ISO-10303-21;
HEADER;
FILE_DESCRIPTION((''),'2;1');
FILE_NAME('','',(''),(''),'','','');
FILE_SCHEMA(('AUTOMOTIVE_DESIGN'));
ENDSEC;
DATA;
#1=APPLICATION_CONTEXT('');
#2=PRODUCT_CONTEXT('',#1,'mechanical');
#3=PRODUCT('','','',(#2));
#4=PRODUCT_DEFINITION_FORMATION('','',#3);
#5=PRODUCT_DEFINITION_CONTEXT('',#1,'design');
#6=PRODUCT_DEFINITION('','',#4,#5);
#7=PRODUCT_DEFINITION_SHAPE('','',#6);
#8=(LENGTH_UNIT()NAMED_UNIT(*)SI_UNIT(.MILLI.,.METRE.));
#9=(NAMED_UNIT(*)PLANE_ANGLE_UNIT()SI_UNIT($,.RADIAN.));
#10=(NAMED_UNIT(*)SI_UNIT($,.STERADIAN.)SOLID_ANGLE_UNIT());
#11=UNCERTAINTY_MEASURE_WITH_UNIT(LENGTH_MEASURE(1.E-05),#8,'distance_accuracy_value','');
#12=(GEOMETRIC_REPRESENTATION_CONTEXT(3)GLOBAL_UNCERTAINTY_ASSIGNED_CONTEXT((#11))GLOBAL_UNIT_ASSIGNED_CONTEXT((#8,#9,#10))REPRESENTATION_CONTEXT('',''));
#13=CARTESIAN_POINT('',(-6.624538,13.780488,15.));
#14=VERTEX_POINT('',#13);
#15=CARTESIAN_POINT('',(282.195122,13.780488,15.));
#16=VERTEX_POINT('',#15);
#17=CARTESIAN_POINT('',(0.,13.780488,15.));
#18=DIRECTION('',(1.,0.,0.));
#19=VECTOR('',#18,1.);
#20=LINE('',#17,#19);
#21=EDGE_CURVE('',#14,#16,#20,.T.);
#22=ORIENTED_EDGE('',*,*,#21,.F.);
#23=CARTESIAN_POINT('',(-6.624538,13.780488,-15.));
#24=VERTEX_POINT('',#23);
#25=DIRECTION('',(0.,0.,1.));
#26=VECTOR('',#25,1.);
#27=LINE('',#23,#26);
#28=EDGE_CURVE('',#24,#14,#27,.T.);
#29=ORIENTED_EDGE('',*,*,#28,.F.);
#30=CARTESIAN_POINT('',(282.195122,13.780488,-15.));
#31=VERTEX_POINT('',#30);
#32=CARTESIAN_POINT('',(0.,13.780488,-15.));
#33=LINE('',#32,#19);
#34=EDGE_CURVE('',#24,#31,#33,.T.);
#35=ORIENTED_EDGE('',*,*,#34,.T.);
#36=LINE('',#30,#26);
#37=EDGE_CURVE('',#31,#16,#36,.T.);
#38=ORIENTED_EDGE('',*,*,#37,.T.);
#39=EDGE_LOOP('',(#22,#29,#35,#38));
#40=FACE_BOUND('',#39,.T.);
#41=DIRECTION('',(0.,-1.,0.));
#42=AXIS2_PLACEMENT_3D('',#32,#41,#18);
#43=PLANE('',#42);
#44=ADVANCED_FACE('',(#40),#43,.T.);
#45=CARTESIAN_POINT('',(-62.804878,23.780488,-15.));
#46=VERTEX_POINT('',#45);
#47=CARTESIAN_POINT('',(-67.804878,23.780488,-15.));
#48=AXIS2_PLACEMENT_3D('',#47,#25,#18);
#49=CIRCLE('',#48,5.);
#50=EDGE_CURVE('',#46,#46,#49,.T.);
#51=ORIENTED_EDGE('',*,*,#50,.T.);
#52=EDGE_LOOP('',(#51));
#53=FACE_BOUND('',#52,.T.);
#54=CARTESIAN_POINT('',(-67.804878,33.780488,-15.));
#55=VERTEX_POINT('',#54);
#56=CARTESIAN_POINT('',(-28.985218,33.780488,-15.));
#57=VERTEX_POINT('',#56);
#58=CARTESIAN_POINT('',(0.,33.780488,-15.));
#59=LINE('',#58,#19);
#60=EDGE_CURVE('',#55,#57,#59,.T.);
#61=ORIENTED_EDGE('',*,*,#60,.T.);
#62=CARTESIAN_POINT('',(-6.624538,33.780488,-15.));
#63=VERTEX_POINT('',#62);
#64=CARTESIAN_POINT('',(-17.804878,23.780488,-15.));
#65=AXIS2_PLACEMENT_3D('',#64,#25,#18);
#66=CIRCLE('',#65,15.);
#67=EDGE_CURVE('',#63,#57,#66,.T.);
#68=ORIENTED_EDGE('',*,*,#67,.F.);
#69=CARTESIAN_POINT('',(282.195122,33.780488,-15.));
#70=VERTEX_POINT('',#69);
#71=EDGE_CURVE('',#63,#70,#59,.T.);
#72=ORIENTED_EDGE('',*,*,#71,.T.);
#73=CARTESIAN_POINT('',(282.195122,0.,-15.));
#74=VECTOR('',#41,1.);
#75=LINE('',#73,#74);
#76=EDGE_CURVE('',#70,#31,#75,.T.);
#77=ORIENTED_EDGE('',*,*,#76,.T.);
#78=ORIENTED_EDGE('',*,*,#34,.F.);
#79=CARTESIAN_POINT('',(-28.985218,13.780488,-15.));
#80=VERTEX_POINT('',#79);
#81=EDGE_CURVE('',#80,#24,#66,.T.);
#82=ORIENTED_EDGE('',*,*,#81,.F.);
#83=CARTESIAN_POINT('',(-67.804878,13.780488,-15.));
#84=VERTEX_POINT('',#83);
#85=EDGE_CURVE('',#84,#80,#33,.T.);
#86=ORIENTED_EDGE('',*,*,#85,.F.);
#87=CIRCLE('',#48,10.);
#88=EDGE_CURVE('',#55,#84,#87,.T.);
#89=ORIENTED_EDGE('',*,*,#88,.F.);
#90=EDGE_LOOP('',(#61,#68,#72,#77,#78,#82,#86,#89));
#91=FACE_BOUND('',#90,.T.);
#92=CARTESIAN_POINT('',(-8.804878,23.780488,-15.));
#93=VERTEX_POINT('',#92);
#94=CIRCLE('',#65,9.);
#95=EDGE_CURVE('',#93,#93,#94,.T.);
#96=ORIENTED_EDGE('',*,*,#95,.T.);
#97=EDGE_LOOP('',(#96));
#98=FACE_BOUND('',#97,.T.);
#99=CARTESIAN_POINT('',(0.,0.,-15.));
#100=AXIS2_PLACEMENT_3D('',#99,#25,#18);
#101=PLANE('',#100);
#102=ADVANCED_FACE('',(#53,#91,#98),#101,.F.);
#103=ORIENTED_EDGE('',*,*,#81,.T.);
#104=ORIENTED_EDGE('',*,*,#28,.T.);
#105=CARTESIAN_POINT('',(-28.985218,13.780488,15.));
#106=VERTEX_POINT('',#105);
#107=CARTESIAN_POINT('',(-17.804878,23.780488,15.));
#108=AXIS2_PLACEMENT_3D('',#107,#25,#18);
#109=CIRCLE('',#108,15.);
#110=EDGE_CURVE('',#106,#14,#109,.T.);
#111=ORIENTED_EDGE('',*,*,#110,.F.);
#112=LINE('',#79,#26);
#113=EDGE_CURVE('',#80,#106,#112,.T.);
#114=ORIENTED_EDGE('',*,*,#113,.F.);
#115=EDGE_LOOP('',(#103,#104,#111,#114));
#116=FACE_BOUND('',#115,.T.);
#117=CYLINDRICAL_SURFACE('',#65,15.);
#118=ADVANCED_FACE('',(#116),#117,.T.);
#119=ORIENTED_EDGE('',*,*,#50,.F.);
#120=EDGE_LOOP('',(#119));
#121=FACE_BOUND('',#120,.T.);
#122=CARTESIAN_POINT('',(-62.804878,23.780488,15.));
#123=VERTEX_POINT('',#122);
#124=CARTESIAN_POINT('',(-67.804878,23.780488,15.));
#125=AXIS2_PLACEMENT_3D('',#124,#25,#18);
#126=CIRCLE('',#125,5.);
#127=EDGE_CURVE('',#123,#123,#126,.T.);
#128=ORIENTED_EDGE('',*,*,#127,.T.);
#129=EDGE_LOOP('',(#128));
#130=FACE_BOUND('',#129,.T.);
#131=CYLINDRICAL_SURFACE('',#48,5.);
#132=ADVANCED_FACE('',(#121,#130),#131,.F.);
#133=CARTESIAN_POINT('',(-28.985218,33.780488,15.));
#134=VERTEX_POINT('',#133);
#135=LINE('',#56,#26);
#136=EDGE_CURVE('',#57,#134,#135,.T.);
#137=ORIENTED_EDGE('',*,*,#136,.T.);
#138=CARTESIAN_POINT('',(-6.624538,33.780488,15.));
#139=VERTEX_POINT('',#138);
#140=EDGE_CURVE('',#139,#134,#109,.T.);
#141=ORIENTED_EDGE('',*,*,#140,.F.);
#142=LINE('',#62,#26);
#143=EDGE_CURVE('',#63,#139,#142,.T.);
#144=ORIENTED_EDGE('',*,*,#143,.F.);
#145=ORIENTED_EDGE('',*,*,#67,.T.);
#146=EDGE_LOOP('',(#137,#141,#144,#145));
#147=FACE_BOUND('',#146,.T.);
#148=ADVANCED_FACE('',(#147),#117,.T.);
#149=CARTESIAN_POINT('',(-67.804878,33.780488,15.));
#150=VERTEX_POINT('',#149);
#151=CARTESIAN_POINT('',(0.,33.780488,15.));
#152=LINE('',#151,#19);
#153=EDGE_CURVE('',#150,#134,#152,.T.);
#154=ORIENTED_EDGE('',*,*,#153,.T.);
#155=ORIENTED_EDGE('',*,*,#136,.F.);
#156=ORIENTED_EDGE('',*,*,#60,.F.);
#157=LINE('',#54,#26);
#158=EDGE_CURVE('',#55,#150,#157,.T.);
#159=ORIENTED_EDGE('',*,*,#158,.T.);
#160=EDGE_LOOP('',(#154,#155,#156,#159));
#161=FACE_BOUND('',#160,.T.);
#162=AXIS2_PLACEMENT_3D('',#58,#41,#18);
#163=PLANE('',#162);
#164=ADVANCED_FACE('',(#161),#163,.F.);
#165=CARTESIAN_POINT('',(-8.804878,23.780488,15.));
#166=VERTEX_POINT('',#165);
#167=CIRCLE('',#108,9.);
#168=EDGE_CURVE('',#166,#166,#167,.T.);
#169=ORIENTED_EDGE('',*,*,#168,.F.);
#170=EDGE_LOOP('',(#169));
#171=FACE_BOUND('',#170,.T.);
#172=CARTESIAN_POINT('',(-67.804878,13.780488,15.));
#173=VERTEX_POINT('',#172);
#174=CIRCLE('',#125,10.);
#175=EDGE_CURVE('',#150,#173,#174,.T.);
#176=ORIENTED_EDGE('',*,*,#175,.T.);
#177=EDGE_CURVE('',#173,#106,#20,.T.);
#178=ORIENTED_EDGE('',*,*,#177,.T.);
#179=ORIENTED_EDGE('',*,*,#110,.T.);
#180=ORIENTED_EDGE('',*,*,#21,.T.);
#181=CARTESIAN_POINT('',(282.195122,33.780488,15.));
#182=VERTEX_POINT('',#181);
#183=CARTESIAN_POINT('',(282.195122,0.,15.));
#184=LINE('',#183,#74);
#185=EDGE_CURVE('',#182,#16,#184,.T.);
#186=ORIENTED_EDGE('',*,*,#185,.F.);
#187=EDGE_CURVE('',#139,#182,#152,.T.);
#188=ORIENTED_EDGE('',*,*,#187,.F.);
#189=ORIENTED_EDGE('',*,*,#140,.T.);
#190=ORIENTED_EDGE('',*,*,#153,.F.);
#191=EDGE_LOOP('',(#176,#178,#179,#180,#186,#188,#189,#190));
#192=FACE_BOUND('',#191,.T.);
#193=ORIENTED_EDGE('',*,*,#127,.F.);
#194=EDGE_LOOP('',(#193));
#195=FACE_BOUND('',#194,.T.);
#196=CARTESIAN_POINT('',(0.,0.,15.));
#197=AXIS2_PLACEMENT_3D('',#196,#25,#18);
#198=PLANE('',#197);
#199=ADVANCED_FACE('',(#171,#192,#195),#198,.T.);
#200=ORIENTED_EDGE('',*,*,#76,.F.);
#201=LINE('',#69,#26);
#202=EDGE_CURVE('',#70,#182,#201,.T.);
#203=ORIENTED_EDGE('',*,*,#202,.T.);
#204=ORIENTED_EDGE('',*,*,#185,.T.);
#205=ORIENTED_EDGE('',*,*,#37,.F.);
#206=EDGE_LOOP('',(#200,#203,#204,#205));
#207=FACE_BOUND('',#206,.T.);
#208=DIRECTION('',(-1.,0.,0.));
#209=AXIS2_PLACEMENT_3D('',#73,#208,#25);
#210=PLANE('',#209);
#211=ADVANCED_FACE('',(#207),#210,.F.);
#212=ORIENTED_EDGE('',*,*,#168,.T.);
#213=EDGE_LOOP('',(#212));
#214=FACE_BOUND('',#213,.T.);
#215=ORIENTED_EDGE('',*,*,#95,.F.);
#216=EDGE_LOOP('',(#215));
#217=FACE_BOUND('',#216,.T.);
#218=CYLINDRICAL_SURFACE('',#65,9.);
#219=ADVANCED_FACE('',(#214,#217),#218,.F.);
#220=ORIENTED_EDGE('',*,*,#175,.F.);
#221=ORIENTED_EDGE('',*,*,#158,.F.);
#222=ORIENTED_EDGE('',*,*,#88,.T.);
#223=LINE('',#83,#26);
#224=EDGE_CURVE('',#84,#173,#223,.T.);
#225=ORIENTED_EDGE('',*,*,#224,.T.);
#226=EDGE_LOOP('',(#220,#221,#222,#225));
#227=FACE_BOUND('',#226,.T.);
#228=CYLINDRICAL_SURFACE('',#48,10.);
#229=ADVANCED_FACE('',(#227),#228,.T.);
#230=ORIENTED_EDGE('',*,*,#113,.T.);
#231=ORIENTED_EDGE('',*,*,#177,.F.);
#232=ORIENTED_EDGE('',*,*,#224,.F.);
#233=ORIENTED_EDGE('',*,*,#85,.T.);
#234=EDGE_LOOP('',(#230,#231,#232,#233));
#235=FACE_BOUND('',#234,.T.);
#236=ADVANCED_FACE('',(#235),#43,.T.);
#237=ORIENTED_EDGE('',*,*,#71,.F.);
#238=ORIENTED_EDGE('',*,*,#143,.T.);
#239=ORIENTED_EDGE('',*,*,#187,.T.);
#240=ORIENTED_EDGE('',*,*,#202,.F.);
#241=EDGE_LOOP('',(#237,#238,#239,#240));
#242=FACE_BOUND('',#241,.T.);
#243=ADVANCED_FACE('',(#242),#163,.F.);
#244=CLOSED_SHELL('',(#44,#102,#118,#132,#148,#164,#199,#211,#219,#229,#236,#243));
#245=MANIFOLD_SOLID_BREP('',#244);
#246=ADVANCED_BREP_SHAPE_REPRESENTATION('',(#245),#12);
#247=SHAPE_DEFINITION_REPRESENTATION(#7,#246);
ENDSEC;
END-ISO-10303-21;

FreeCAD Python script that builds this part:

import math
import FreeCAD as App
import Part
import Sketcher

doc = App.newDocument("Part")
body = doc.addObject("PartDesign::Body", "Body")

# Sketch on XY plane
sketch1 = body.newObject("Sketcher::SketchObject", "Sketch")
sketch1.AttachmentSupport = (doc.getObject("XY_Plane"), [""])
sketch1.MapMode = "FlatFace"
sketch1.addGeometry([
    Part.LineSegment(App.Vector(282, 34, 0), App.Vector(-7, 34, 0)),  # 0
    Part.ArcOfCircle(Part.Circle(App.Vector(-18, 24, 0), App.Vector(0, 0, 1), 15), math.radians(42), math.radians(138)),  # 1
    Part.LineSegment(App.Vector(-29, 34, 0), App.Vector(-68, 34, 0)),  # 2
    Part.ArcOfCircle(Part.Circle(App.Vector(-68, 24, 0), App.Vector(0, 0, 1), 10), math.radians(90), math.radians(270)),  # 3
    Part.LineSegment(App.Vector(-68, 14, 0), App.Vector(-29, 14, 0)),  # 4
    Part.ArcOfCircle(Part.Circle(App.Vector(-18, 24, 0), App.Vector(0, 0, 1), 15), math.radians(-138), math.radians(-42)),  # 5
    Part.LineSegment(App.Vector(-7, 14, 0), App.Vector(282, 14, 0)),  # 6
    Part.LineSegment(App.Vector(282, 14, 0), App.Vector(282, 34, 0)),  # 7
    Part.Circle(App.Vector(-68, 24, 0), App.Vector(0, 0, 1), 5),  # 8
    Part.Circle(App.Vector(-18, 24, 0), App.Vector(0, 0, 1), 9),  # 9
], False)
sketch1.addConstraint([
    Sketcher.Constraint("Coincident", 0, 2, 1, 1),
    Sketcher.Constraint("Coincident", 1, 2, 2, 1),
    Sketcher.Constraint("Tangent", 2, 2, 3, 1),
    Sketcher.Constraint("Tangent", 3, 2, 4, 1),
    Sketcher.Constraint("Coincident", 4, 2, 5, 1),
    Sketcher.Constraint("Coincident", 5, 2, 6, 1),
    Sketcher.Constraint("Coincident", 6, 2, 7, 1),
    Sketcher.Constraint("Coincident", 7, 2, 0, 1),
    Sketcher.Constraint("Horizontal", 0),
    Sketcher.Constraint("Horizontal", 2),
    Sketcher.Constraint("Horizontal", 4),
    Sketcher.Constraint("Horizontal", 6),
    Sketcher.Constraint("Vertical", 7),
    Sketcher.Constraint("Coincident", 5, 3, 1, 3),
    Sketcher.Constraint("Coincident", 8, 3, 3, 3),
    Sketcher.Constraint("Coincident", 9, 3, 1, 3),
    Sketcher.Constraint("Equal", 1, 5),
    Sketcher.Constraint("Horizontal", 1, 3, 3, 3),
    Sketcher.Constraint("Horizontal", 0, 2, 1, 2),
    Sketcher.Constraint("Horizontal", 4, 2, 5, 2),
    Sketcher.Constraint("Diameter", 8, 10.0),
    Sketcher.Constraint("Diameter", 9, 18.0),
    Sketcher.Constraint("Radius", 1, 15.0),
    Sketcher.Constraint("Radius", 3, 10.0),
    Sketcher.Constraint("DistanceX", 3, 3, 1, 3, 50.0),
    Sketcher.Constraint("DistanceX", 1, 3, 6, 2, 300.0),
    Sketcher.Constraint("DistanceX", 1, 3, -1, 1, 17.804878),
    Sketcher.Constraint("DistanceY", -1, 1, 1, 3, 23.780488),
])
pad1 = body.newObject("PartDesign::Pad", "Pad")
pad1.Profile = sketch1
pad1.Type = "TwoLengths"
pad1.Length = 15
pad1.Length2 = 15

doc.recompute()
